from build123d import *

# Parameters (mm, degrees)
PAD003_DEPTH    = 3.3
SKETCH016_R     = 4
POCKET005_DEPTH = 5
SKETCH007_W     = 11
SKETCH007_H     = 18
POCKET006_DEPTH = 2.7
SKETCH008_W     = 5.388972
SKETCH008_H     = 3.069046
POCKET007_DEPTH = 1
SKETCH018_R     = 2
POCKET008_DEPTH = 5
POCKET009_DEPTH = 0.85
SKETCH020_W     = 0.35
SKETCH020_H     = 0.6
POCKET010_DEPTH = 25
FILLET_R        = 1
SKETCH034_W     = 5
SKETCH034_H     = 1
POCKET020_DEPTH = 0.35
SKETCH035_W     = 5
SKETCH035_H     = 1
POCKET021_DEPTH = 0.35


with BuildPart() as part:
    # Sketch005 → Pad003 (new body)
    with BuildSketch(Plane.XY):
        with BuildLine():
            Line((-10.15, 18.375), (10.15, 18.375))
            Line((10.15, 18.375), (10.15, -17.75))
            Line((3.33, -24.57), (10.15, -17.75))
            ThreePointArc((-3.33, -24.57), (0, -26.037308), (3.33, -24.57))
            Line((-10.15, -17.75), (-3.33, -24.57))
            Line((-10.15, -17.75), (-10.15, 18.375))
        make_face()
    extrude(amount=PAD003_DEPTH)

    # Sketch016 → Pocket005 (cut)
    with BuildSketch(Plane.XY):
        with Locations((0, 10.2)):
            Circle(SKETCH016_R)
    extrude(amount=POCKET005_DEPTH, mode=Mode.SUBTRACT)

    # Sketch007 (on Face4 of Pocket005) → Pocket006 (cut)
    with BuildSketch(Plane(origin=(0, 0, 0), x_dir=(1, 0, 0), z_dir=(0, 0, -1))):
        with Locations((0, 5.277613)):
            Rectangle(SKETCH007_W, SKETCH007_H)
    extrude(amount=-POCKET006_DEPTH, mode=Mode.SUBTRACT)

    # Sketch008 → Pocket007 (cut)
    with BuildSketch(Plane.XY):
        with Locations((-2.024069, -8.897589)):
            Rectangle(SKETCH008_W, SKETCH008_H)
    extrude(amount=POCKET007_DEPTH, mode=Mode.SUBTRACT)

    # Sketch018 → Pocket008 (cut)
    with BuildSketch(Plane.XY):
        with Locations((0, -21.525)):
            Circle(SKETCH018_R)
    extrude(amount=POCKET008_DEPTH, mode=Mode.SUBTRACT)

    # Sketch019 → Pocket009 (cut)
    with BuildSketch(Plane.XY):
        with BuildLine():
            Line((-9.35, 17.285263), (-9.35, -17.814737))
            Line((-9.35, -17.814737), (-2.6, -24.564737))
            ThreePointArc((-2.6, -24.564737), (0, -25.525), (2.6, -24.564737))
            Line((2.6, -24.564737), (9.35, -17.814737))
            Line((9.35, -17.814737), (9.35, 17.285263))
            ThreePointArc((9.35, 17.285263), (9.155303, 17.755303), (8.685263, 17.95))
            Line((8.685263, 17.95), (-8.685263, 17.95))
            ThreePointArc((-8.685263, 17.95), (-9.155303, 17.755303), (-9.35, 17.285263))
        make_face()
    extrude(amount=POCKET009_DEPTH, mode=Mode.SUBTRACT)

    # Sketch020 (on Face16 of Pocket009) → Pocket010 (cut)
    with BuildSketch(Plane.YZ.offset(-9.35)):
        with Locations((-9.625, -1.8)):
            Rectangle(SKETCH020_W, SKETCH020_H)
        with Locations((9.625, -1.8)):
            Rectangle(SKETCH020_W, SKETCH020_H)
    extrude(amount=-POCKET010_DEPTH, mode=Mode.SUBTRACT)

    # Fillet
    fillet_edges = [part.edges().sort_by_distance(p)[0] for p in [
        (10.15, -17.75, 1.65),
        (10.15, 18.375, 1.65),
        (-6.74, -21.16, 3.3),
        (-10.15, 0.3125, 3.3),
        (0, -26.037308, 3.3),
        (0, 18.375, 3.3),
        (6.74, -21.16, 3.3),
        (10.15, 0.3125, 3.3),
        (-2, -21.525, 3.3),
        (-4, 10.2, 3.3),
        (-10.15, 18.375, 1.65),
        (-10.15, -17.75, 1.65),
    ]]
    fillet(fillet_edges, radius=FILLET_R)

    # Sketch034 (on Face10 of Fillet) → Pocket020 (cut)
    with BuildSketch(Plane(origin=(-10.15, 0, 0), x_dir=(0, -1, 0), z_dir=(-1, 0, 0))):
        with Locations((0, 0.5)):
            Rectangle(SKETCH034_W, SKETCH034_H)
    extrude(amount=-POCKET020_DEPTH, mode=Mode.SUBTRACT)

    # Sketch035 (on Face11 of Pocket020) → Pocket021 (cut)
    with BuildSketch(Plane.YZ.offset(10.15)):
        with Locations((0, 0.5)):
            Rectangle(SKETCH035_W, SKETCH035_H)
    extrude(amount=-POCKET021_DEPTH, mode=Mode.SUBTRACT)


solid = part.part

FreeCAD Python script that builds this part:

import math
import FreeCAD as App
import Part
import Sketcher

V = App.Vector
Q = App.Units.Quantity


def edges_at(feature, points):
    """Names of the edges that pass closest to the given points."""
    edges = feature.Shape.Edges
    near = lambda p: min(range(len(edges)), key=lambda i: edges[i].distToShape(Part.Vertex(*p))[0])
    return sorted({f"Edge{near(p) + 1}" for p in points})


def add_polygon(sketch, points):
    """Adds a closed chain of lines whose ends are joined by coincident constraints."""
    first, n = sketch.GeometryCount, len(points)
    for a, b in zip(points, points[1:] + points[:1]):
        sketch.addGeometry(Part.LineSegment(App.Vector(*a, 0), App.Vector(*b, 0)), False)
    for i in range(n):
        sketch.addConstraint(Sketcher.Constraint("Coincident", first + i, 2, first + (i + 1) % n, 1))

doc = App.newDocument("Part")
body = doc.addObject("PartDesign::Body", "Body")

# Sketch on XY plane
sketch1 = body.newObject("Sketcher::SketchObject", "Sketch")
sketch1.AttachmentSupport = (doc.getObject("XY_Plane"), [""])
sketch1.MapMode = "FlatFace"
sketch1.addGeometry([
    Part.LineSegment(V(10.15, 18.375, 0), V(-10.15, 18.375, 0)),  # 0
    Part.LineSegment(V(-10.15, 18.375, 0), V(-10.15, -17.75, 0)),  # 1
    Part.LineSegment(V(-10.15, -17.75, 0), V(-3.33, -24.57, 0)),  # 2
    Part.ArcOfCircle(Part.Circle(V(0, -21.524999, 0), V(0, 0, 1), 4.512309), math.radians(-137.559749), math.radians(-42.440251)),  # 3
    Part.LineSegment(V(3.33, -24.57, 0), V(10.15, -17.75, 0)),  # 4
    Part.LineSegment(V(10.15, -17.75, 0), V(10.15, 18.375, 0)),  # 5
], False)
sketch1.addConstraint([
    Sketcher.Constraint("Coincident", 0, 2, 1, 1),
    Sketcher.Constraint("Coincident", 1, 2, 2, 1),
    Sketcher.Constraint("Coincident", 2, 2, 3, 1),
    Sketcher.Constraint("Coincident", 3, 2, 4, 1),
    Sketcher.Constraint("Coincident", 4, 2, 5, 1),
    Sketcher.Constraint("Coincident", 5, 2, 0, 1),
    Sketcher.Constraint("Horizontal", 0),
    Sketcher.Constraint("Vertical", 1),
    Sketcher.Constraint("Vertical", 5),
    Sketcher.Constraint("Symmetric", 2, 2, 3, 2, -2),
    Sketcher.Constraint("Symmetric", 1, 2, 4, 2, -2),
    Sketcher.Constraint("Perpendicular", 2, 4),
    Sketcher.Constraint("DistanceX", 0, 2, 0, 1, Q("20.3 mm")),
    Sketcher.Constraint("DistanceY", 3, 3, 0, 2, Q("39.899999 mm")),
    Sketcher.Constraint("DistanceY", 1, 2, 1, 1, Q("36.125 mm")),
    Sketcher.Constraint("DistanceY", 1, 2, -1, 1, Q("17.75 mm")),
    Sketcher.Constraint("DistanceX", 2, 2, -1, 1, Q("3.33 mm")),
])
pad1 = body.newObject("PartDesign::Pad", "Pad")
pad1.Profile = sketch1
pad1.Length = 3.3

# Sketch on XY plane
sketch2 = body.newObject("Sketcher::SketchObject", "Sketch001")
sketch2.AttachmentSupport = (doc.getObject("XY_Plane"), [""])
sketch2.MapMode = "FlatFace"
sketch2.addGeometry(Part.Circle(V(0, 10.2, 0), V(0, 0, 1), 4), False)
sketch2.addConstraint([
    Sketcher.Constraint("PointOnObject", 0, 3, -2),
    Sketcher.Constraint("Diameter", 0, Q("8 mm")),
    Sketcher.Constraint("DistanceY", -1, 1, 0, 3, Q("10.2 mm")),
])
pocket1 = body.newObject("PartDesign::Pocket", "Pocket")
pocket1.Profile = sketch2
pocket1.Length = 5
pocket1.Reversed = True

# Sketch on XY plane
sketch3 = body.newObject("Sketcher::SketchObject", "Sketch002")
sketch3.AttachmentSupport = (doc.getObject("XY_Plane"), [""])
sketch3.MapMode = "FlatFace"
add_polygon(sketch3, [(-5.5, -14.277613), (-5.5, 3.722387), (5.5, 3.722387), (5.5, -14.277613)])  # lines 0-3
sketch3.addConstraint([
    Sketcher.Constraint("Vertical", 0),
    Sketcher.Constraint("Horizontal", 1),
    Sketcher.Constraint("Vertical", 2),
    Sketcher.Constraint("Horizontal", 3),
    Sketcher.Constraint("DistanceX", 1, 1, 1, 2, Q("11 mm")),
    Sketcher.Constraint("DistanceY", 0, 1, 0, 2, Q("18 mm")),
    Sketcher.Constraint("DistanceX", 0, 2, -1, 1, Q("5.5 mm")),
    Sketcher.Constraint("DistanceY", -1, 1, 0, 2, Q("3.722387 mm")),
])
pocket2 = body.newObject("PartDesign::Pocket", "Pocket001")
pocket2.Profile = sketch3
pocket2.Length = 2.7
pocket2.Reversed = True

# Sketch on XY plane
sketch4 = body.newObject("Sketcher::SketchObject", "Sketch003")
sketch4.AttachmentSupport = (doc.getObject("XY_Plane"), [""])
sketch4.MapMode = "FlatFace"
add_polygon(sketch4, [(-4.718555, -7.363066), (-4.718555, -10.432112), (0.670417, -10.432112), (0.670417, -7.363066)])  # lines 0-3
sketch4.addConstraint([
    Sketcher.Constraint("Vertical", 0),
    Sketcher.Constraint("Horizontal", 1),
    Sketcher.Constraint("Vertical", 2),
    Sketcher.Constraint("Horizontal", 3),
    Sketcher.Constraint("DistanceX", 1, 1, 1, 2, Q("5.388972 mm")),
    Sketcher.Constraint("DistanceY", 0, 2, 0, 1, Q("3.069046 mm")),
    Sketcher.Constraint("DistanceX", 0, 2, -1, 1, Q("4.718555 mm")),
    Sketcher.Constraint("DistanceY", 0, 2, -1, 1, Q("10.432112 mm")),
])
pocket3 = body.newObject("PartDesign::Pocket", "Pocket002")
pocket3.Profile = sketch4
pocket3.Length = 1
pocket3.Reversed = True

# Sketch on XY plane
sketch5 = body.newObject("Sketcher::SketchObject", "Sketch004")
sketch5.AttachmentSupport = (doc.getObject("XY_Plane"), [""])
sketch5.MapMode = "FlatFace"
sketch5.addGeometry(Part.Circle(V(0, -21.525, 0), V(0, 0, 1), 2), False)
sketch5.addConstraint([
    Sketcher.Constraint("PointOnObject", 0, 3, -2),
    Sketcher.Constraint("Diameter", 0, Q("4 mm")),
    Sketcher.Constraint("DistanceY", 0, 3, -1, 1, Q("21.525 mm")),
])
pocket4 = body.newObject("PartDesign::Pocket", "Pocket003")
pocket4.Profile = sketch5
pocket4.Length = 5
pocket4.Reversed = True

# Sketch on XY plane
sketch6 = body.newObject("Sketcher::SketchObject", "Sketch005")
sketch6.AttachmentSupport = (doc.getObject("XY_Plane"), [""])
sketch6.MapMode = "FlatFace"
sketch6.addGeometry([
    Part.LineSegment(V(-9.35, 17.285263, 0), V(-9.35, -17.814737, 0)),  # 0
    Part.LineSegment(V(-9.35, -17.814737, 0), V(-2.6, -24.564737, 0)),  # 1
    Part.ArcOfCircle(Part.Circle(V(0, -21.524999, 0), V(0, 0, 1), 4.000001), math.radians(-130.541595), math.radians(-49.458405)),  # 2
    Part.LineSegment(V(2.6, -24.564737, 0), V(9.35, -17.814737, 0)),  # 3
    Part.LineSegment(V(9.35, -17.814737, 0), V(9.35, 17.285263, 0)),  # 4
    Part.ArcOfCircle(Part.Circle(V(8.685263, 17.285263, 0), V(0, 0, 1), 0.664737), math.radians(0.000012), math.radians(89.999988)),  # 5
    Part.LineSegment(V(8.685263, 17.95, 0), V(-8.685263, 17.95, 0)),  # 6
    Part.ArcOfCircle(Part.Circle(V(-8.685263, 17.285263, 0), V(0, 0, 1), 0.664737), math.radians(90.000012), math.radians(179.999988)),  # 7
], False)
sketch6.addConstraint([
    Sketcher.Constraint("Coincident", 0, 2, 1, 1),
    Sketcher.Constraint("Coincident", 1, 2, 2, 1),
    Sketcher.Constraint("Coincident", 2, 2, 3, 1),
    Sketcher.Constraint("Coincident", 3, 2, 4, 1),
    Sketcher.Constraint("Tangent", 4, 2, 5, 1),
    Sketcher.Constraint("Tangent", 5, 2, 6, 1),
    Sketcher.Constraint("Tangent", 6, 2, 7, 1),
    Sketcher.Constraint("Tangent", 7, 2, 0, 1),
    Sketcher.Constraint("Vertical", 0),
    Sketcher.Constraint("Vertical", 4),
    Sketcher.Constraint("Horizontal", 6),
    Sketcher.Constraint("Equal", 5, 7),
    Sketcher.Constraint("Symmetric", 1, 2, 2, 2, -2),
    Sketcher.Constraint("Symmetric", 0, 2, 3, 2, -2),
    Sketcher.Constraint("Perpendicular", 1, 3),
    Sketcher.Constraint("Radius", 2, Q("4.000001 mm")),
    Sketcher.Constraint("DistanceY", 0, 2, 0, 1, Q("35.1 mm")),
    Sketcher.Constraint("DistanceX", 1, 2, -1, 1, Q("2.6 mm")),
    Sketcher.Constraint("DistanceX", 0, 2, 3, 2, Q("18.7 mm")),
    Sketcher.Constraint("DistanceY", -1, 1, 5, 2, Q("17.95 mm")),
    Sketcher.Constraint("DistanceY", 2, 3, -1, 1, Q("21.524999 mm")),
])
pocket5 = body.newObject("PartDesign::Pocket", "Pocket004")
pocket5.Profile = sketch6
pocket5.Length = 0.85
pocket5.Reversed = True

# Sketch on YZ plane
sketch7 = body.newObject("Sketcher::SketchObject", "Sketch006")
sketch7.AttachmentSupport = (doc.getObject("YZ_Plane"), [""])
sketch7.MapMode = "FlatFace"
sketch7.AttachmentOffset = App.Placement(V(0, 0, -9.35), App.Rotation())
add_polygon(sketch7, [(-9.8, -1.5), (-9.8, -2.1), (-9.45, -2.1), (-9.45, -1.5)])  # lines 0-3
add_polygon(sketch7, [(9.45, -1.5), (9.45, -2.1), (9.8, -2.1), (9.8, -1.5)])  # lines 4-7
sketch7.addConstraint([
    Sketcher.Constraint("Vertical", 0),
    Sketcher.Constraint("Horizontal", 1),
    Sketcher.Constraint("Vertical", 2),
    Sketcher.Constraint("Horizontal", 3),
    Sketcher.Constraint("Vertical", 4),
    Sketcher.Constraint("Horizontal", 5),
    Sketcher.Constraint("Vertical", 6),
    Sketcher.Constraint("Horizontal", 7),
    Sketcher.Constraint("Symmetric", 1, 2, 4, 2, -2),
    Sketcher.Constraint("Symmetric", 3, 2, 6, 2, -2),
    Sketcher.Constraint("DistanceY", 0, 2, 0, 1, Q("0.6 mm")),
    Sketcher.Constraint("DistanceX", 1, 1, 1, 2, Q("0.35 mm")),
    Sketcher.Constraint("DistanceX", 0, 2, -1, 1, Q("9.8 mm")),
    Sketcher.Constraint("DistanceY", 0, 2, -1, 1, Q("2.1 mm")),
])
pocket6 = body.newObject("PartDesign::Pocket", "Pocket005")
pocket6.Profile = sketch7
pocket6.Length = 25
doc.recompute()

fillet = body.newObject("PartDesign::Fillet", "Fillet")
fillet.Base = (pocket6, edges_at(pocket6, [
    (10.15, -17.75, 1.65),
    (10.15, 18.375, 1.65),
    (-6.74, -21.16, 3.3),
    (-10.15, 0.312, 3.3),
    (0, -26.037, 3.3),
    (0, 18.375, 3.3),
    (6.74, -21.16, 3.3),
    (10.15, 0.312, 3.3),
    (-2, -21.525, 3.3),
    (-4, 10.2, 3.3),
    (-10.15, 18.375, 1.65),
    (-10.15, -17.75, 1.65),
]))
fillet.Radius = 1

# Sketch on YZ plane
sketch8 = body.newObject("Sketcher::SketchObject", "Sketch007")
sketch8.AttachmentSupport = (doc.getObject("YZ_Plane"), [""])
sketch8.MapMode = "FlatFace"
sketch8.AttachmentOffset = App.Placement(V(0, 0, -10.15), App.Rotation())
add_polygon(sketch8, [(2.5, 1), (2.5, 0), (-2.5, 0), (-2.5, 1)])  # lines 0-3
sketch8.addConstraint([
    Sketcher.Constraint("Vertical", 0),
    Sketcher.Constraint("Horizontal", 1),
    Sketcher.Constraint("Vertical", 2),
    Sketcher.Constraint("Horizontal", 3),
    Sketcher.Constraint("Symmetric", 0, 2, 1, 2, -1, 1),
    Sketcher.Constraint("DistanceX", 1, 2, 1, 1, Q("5 mm")),
    Sketcher.Constraint("DistanceY", 0, 2, 0, 1, Q("1 mm")),
])
pocket7 = body.newObject("PartDesign::Pocket", "Pocket006")
pocket7.Profile = sketch8
pocket7.Length = 0.35
pocket7.Reversed = True

# Sketch on YZ plane
sketch9 = body.newObject("Sketcher::SketchObject", "Sketch008")
sketch9.AttachmentSupport = (doc.getObject("YZ_Plane"), [""])
sketch9.MapMode = "FlatFace"
sketch9.AttachmentOffset = App.Placement(V(0, 0, 10.15), App.Rotation())
add_polygon(sketch9, [(-2.5, 1), (-2.5, 0), (2.5, 0), (2.5, 1)])  # lines 0-3
sketch9.addConstraint([
    Sketcher.Constraint("Vertical", 0),
    Sketcher.Constraint("Horizontal", 1),
    Sketcher.Constraint("Vertical", 2),
    Sketcher.Constraint("Horizontal", 3),
    Sketcher.Constraint("Symmetric", 0, 2, 1, 2, -1, 1),
    Sketcher.Constraint("DistanceX", 1, 1, 1, 2, Q("5 mm")),
    Sketcher.Constraint("DistanceY", 0, 2, 0, 1, Q("1 mm")),
])
pocket8 = body.newObject("PartDesign::Pocket", "Pocket007")
pocket8.Profile = sketch9
pocket8.Length = 0.35

doc.recompute()
